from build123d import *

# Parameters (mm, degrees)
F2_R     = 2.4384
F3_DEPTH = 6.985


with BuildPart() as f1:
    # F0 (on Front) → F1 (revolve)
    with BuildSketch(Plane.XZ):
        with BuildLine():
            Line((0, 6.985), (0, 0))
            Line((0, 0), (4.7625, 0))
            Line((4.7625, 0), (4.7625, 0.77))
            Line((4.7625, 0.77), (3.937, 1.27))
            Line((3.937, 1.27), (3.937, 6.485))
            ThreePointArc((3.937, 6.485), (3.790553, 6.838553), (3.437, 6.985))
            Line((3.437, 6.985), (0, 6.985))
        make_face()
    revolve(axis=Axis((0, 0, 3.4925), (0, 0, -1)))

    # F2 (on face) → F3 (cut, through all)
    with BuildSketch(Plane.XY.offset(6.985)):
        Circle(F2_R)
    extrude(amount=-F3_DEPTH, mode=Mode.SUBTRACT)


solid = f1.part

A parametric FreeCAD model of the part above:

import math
import FreeCAD as App
import Part
import Sketcher
Q = App.Units.Quantity

doc = App.newDocument("Part")
body = doc.addObject("PartDesign::Body", "Body")

sketch1 = body.newObject("Sketcher::SketchObject", "Sketch")
sketch1.AttachmentSupport = (doc.getObject("XZ_Plane"), [""])
sketch1.MapMode = "FlatFace"
sketch1.addGeometry([
    Part.LineSegment(App.Vector(0, 7, 0), App.Vector(0, 0, 0)),
    Part.LineSegment(App.Vector(0, 0, 0), App.Vector(4.8, 0, 0)),
    Part.LineSegment(App.Vector(4.8, 0, 0), App.Vector(4.8, 0.8, 0)),
    Part.LineSegment(App.Vector(4.8, 0.8, 0), App.Vector(3.9, 1.3, 0)),
    Part.LineSegment(App.Vector(3.9, 1.3, 0), App.Vector(3.9, 6.5, 0)),
    Part.ArcOfCircle(Part.Circle(App.Vector(3.4, 6.5, 0), App.Vector(0, 0, 1), 0.5), math.radians(0), math.radians(90)),
    Part.LineSegment(App.Vector(3.4, 7, 0), App.Vector(0, 7, 0)),
], False)
sketch1.addConstraint([
    Sketcher.Constraint("Coincident", 0, 2, 1, 1),
    Sketcher.Constraint("Coincident", 1, 2, 2, 1),
    Sketcher.Constraint("Coincident", 2, 2, 3, 1),
    Sketcher.Constraint("Coincident", 3, 2, 4, 1),
    Sketcher.Constraint("Coincident", 4, 2, 5, 1),
    Sketcher.Constraint("Coincident", 5, 2, 6, 1),
    Sketcher.Constraint("Coincident", 6, 2, 0, 1),
    Sketcher.Constraint("Vertical", 0),
    Sketcher.Constraint("Horizontal", 1),
    Sketcher.Constraint("Vertical", 2),
    Sketcher.Constraint("Vertical", 4),
    Sketcher.Constraint("Horizontal", 6),
    Sketcher.Constraint("Coincident", 0, 2, -1, 1),
    Sketcher.Constraint("Horizontal", 5, 3, 4, 2),
    Sketcher.Constraint("DistanceX", 1, 1, 1, 2, Q("0.1875 in")),
    Sketcher.Constraint("DistanceY", 0, 2, 0, 1, Q("0.275 in")),
    Sketcher.Constraint("DistanceY", -1, 1, 3, 2, Q("0.05 in")),
    Sketcher.Constraint("Radius", 5, 0.500001),
    Sketcher.Constraint("DistanceX", -1, 1, 3, 2, Q("0.155 in")),
    Sketcher.Constraint("DistanceY", 2, 2, 5, 3, Q("0.2249999 in")),
    Sketcher.Constraint("DistanceX", 6, 2, 6, 1, 3.437),
])
revolution = body.newObject("PartDesign::Revolution", "Revolution")
revolution.Profile = sketch1
revolution.ReferenceAxis = (sketch1, ["V_Axis"])
revolution.Angle = 360

sketch2 = body.newObject("Sketcher::SketchObject", "Sketch001")
sketch2.AttachmentSupport = (doc.getObject("XY_Plane"), [""])
sketch2.MapMode = "FlatFace"
sketch2.AttachmentOffset = App.Placement(App.Vector(0, 0, 0.275 * 25.4), App.Rotation())
sketch2.addGeometry(Part.Circle(App.Vector(0, 0, 0), App.Vector(0, 0, 1), 2.4), False)
sketch2.addConstraint([
    Sketcher.Constraint("Coincident", 0, 3, -1, 1),
    Sketcher.Constraint("Diameter", 0, Q("0.192 in")),
])
pocket1 = body.newObject("PartDesign::Pocket", "Pocket")
pocket1.Profile = sketch2
pocket1.Type = "ThroughAll"

doc.recompute()
